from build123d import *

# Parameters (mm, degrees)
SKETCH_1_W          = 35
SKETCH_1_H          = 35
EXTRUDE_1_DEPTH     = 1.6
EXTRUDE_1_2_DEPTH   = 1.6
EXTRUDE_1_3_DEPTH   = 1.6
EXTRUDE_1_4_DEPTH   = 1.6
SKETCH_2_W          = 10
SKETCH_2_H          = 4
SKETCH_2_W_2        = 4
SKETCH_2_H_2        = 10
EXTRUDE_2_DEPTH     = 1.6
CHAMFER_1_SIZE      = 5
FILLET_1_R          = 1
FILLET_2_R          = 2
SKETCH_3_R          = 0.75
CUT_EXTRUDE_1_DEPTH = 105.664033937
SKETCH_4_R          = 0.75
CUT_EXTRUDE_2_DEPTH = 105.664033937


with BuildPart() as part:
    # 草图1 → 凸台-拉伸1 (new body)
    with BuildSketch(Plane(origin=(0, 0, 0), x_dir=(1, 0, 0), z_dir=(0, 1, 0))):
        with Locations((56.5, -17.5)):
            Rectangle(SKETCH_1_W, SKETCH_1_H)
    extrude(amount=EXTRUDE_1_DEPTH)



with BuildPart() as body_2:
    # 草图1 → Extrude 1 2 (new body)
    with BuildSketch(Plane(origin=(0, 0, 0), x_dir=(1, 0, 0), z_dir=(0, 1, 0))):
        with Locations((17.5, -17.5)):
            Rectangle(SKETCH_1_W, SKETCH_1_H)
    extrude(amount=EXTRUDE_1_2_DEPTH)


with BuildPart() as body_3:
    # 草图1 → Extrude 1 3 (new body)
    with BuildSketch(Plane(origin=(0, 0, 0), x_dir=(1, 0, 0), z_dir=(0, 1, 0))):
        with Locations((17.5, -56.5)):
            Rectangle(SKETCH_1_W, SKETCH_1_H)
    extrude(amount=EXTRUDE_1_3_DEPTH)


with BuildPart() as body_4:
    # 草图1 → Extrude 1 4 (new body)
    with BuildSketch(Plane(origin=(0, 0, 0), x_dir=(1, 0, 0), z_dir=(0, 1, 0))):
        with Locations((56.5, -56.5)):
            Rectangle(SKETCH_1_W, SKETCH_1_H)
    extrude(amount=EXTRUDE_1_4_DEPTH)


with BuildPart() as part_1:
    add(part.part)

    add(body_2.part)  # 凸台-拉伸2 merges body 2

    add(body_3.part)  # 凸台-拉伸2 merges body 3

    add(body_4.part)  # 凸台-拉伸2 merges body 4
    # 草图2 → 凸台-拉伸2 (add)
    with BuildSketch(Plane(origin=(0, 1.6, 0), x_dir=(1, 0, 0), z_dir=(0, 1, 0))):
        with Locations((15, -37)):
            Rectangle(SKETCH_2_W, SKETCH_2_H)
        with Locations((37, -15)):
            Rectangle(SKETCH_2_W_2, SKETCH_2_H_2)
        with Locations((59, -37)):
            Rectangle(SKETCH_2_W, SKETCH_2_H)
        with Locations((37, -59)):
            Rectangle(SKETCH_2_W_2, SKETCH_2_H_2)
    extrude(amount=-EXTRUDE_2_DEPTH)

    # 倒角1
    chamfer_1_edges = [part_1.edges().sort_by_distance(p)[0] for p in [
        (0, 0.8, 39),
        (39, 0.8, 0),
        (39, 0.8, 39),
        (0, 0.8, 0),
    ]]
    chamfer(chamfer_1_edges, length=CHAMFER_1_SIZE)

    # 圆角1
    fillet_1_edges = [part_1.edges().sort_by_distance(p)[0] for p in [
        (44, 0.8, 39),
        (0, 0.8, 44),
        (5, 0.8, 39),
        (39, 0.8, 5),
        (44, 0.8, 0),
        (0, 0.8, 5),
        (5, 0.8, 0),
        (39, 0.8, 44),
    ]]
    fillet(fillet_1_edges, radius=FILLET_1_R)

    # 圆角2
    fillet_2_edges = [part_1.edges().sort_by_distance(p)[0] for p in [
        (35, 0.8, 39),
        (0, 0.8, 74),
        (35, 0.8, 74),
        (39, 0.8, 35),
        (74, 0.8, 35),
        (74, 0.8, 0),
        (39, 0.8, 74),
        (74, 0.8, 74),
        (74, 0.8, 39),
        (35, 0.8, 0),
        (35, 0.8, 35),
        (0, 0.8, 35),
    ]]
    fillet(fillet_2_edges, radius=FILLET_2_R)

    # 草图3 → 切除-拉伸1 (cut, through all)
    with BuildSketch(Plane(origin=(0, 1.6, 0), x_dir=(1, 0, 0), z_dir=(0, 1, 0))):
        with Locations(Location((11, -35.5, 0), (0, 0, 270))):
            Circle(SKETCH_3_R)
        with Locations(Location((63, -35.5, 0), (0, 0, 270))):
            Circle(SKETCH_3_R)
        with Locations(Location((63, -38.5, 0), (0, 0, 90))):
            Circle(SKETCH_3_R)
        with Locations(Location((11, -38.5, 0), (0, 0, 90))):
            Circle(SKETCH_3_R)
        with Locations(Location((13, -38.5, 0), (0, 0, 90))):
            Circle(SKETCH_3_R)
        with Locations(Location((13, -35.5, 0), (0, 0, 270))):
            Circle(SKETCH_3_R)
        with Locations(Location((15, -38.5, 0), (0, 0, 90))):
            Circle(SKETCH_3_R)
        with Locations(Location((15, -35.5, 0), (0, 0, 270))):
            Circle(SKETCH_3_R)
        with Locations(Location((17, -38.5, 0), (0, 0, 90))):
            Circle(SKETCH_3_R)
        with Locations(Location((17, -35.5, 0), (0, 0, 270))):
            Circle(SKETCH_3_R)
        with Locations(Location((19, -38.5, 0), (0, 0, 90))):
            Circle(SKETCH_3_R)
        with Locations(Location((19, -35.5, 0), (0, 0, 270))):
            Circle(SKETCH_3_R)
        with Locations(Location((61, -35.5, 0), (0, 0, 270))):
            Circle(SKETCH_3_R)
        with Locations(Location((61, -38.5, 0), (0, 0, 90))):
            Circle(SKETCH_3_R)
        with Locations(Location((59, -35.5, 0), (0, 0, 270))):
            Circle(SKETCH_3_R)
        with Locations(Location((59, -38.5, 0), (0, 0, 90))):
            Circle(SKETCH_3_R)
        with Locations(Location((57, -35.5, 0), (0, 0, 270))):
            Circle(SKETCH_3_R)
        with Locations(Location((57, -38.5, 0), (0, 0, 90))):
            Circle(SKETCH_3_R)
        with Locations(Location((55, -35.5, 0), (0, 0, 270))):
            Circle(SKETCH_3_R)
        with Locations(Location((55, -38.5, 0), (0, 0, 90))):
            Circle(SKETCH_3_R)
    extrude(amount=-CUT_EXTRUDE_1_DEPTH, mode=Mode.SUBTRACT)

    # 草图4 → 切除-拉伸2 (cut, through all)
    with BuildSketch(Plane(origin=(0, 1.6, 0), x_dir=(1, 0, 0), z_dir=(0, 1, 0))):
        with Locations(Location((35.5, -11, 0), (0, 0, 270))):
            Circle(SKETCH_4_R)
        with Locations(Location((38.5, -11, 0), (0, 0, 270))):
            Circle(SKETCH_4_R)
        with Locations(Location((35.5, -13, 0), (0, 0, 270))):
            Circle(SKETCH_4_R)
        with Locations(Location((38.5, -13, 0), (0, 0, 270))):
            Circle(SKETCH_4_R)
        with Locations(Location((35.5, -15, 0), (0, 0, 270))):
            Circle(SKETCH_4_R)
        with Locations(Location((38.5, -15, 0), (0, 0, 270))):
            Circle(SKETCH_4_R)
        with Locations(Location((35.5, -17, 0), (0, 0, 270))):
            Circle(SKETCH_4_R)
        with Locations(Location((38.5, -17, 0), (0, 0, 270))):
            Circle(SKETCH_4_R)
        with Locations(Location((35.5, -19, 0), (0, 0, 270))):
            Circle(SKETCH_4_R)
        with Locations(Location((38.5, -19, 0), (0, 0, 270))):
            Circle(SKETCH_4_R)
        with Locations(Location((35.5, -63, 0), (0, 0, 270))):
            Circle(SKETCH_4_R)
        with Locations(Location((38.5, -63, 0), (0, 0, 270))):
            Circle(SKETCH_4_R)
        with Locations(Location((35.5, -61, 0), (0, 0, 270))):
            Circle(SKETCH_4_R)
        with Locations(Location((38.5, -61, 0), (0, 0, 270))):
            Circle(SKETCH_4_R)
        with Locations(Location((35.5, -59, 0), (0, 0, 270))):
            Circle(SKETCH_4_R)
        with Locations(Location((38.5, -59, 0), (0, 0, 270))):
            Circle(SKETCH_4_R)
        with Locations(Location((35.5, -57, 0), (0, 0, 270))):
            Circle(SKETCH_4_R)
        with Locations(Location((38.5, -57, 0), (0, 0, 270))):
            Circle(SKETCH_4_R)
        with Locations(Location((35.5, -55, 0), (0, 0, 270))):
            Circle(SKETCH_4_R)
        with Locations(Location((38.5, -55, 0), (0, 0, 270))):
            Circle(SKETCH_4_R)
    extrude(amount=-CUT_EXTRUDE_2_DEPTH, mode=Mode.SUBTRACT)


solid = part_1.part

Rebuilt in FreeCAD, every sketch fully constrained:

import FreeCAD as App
import Part
import Sketcher

V = App.Vector
Q = App.Units.Quantity


def edges_at(feature, points):
    """Names of the edges that pass closest to the given points."""
    edges = feature.Shape.Edges
    near = lambda p: min(range(len(edges)), key=lambda i: edges[i].distToShape(Part.Vertex(*p))[0])
    return sorted({f"Edge{near(p) + 1}" for p in points})

doc = App.newDocument("Part")
params = doc.addObject("Spreadsheet::Sheet", "Params")
for row, (alias, value) in enumerate([
    ("sketch1_width", "35 mm"),
    ("pad1_length", "1.6 mm"),
    ("sketch2_width", "35 mm"),
    ("pad2_length", "1.6 mm"),
    ("sketch3_width", "35 mm"),
    ("pad3_length", "1.6 mm"),
    ("sketch4_width", "35 mm"),
    ("pad4_length", "1.6 mm"),
    ("sketch5_width", "10 mm"),
    ("sketch5_width2", "4 mm"),
    ("pad5_length", "1.6 mm"),
    ("chamfer_size", "5 mm"),
    ("fillet_radius", "1 mm"),
    ("fillet2_radius", "2 mm"),
    ("sketch6_diameter", "1.5 mm"),
    ("sketch7_diameter", "1.5 mm"),
], start=1):
    params.set(f"A{row}", alias)
    params.set(f"B{row}", "=" + value)
    params.setAlias(f"B{row}", alias)

body = doc.addObject("PartDesign::Body", "Body")

sketch1 = body.newObject("Sketcher::SketchObject", "Sketch")
sketch1.AttachmentSupport = (doc.getObject("XZ_Plane"), [""])
sketch1.MapMode = "FlatFace"
sketch1.addGeometry(Part.LineSegment(V(39, 0, 0), V(39, 35, 0)), False)
sketch1.addGeometry(Part.LineSegment(V(39, 35, 0), V(74, 35, 0)), False)
sketch1.addGeometry(Part.LineSegment(V(74, 35, 0), V(74, 0, 0)), False)
sketch1.addGeometry(Part.LineSegment(V(74, 0, 0), V(39, 0, 0)), False)
sketch1.addConstraint(Sketcher.Constraint("Coincident", 0, 2, 1, 1))
sketch1.addConstraint(Sketcher.Constraint("Coincident", 1, 2, 2, 1))
sketch1.addConstraint(Sketcher.Constraint("Coincident", 2, 2, 3, 1))
sketch1.addConstraint(Sketcher.Constraint("Coincident", 3, 2, 0, 1))
sketch1.addConstraint(Sketcher.Constraint("Vertical", 0))
sketch1.addConstraint(Sketcher.Constraint("Horizontal", 1))
sketch1.addConstraint(Sketcher.Constraint("Vertical", 2))
sketch1.addConstraint(Sketcher.Constraint("Horizontal", 3))
sketch1.addConstraint(Sketcher.Constraint("PointOnObject", 2, 2, -1))
sketch1.addConstraint(Sketcher.Constraint("Equal", 3, 0))
sketch1.addConstraint(Sketcher.Constraint("DistanceX", 1, 1, 1, 2, Q("35 mm")))
sketch1.addConstraint(Sketcher.Constraint("DistanceX", -1, 1, 0, 2, Q("39 mm")))
sketch1.setExpression("Constraints[10]", "Params.sketch1_width")
pad1 = body.newObject("PartDesign::Pad", "Pad")
pad1.Profile = sketch1
pad1.setExpression("Length", "Params.pad1_length")
pad1.Reversed = True
body2 = doc.addObject("PartDesign::Body", "Body001")

sketch2 = body2.newObject("Sketcher::SketchObject", "Sketch001")
sketch2.AttachmentSupport = (doc.getObject("XZ_Plane001"), [""])
sketch2.MapMode = "FlatFace"
sketch2.addGeometry(Part.LineSegment(V(0, 0, 0), V(0, 35, 0)), False)
sketch2.addGeometry(Part.LineSegment(V(0, 35, 0), V(35, 35, 0)), False)
sketch2.addGeometry(Part.LineSegment(V(35, 35, 0), V(35, 0, 0)), False)
sketch2.addGeometry(Part.LineSegment(V(35, 0, 0), V(0, 0, 0)), False)
sketch2.addConstraint(Sketcher.Constraint("Coincident", 0, 2, 1, 1))
sketch2.addConstraint(Sketcher.Constraint("Coincident", 1, 2, 2, 1))
sketch2.addConstraint(Sketcher.Constraint("Coincident", 2, 2, 3, 1))
sketch2.addConstraint(Sketcher.Constraint("Coincident", 3, 2, 0, 1))
sketch2.addConstraint(Sketcher.Constraint("Vertical", 0))
sketch2.addConstraint(Sketcher.Constraint("Horizontal", 1))
sketch2.addConstraint(Sketcher.Constraint("Vertical", 2))
sketch2.addConstraint(Sketcher.Constraint("Horizontal", 3))
sketch2.addConstraint(Sketcher.Constraint("Coincident", 3, 2, -1, 1))
sketch2.addConstraint(Sketcher.Constraint("Equal", 3, 0))
sketch2.addConstraint(Sketcher.Constraint("DistanceX", 1, 1, 1, 2, Q("35 mm")))
sketch2.setExpression("Constraints[10]", "Params.sketch2_width")
pad2 = body2.newObject("PartDesign::Pad", "Pad001")
pad2.Profile = sketch2
pad2.setExpression("Length", "Params.pad2_length")
pad2.Reversed = True
body3 = doc.addObject("PartDesign::Body", "Body002")

sketch3 = body3.newObject("Sketcher::SketchObject", "Sketch002")
sketch3.AttachmentSupport = (doc.getObject("XZ_Plane002"), [""])
sketch3.MapMode = "FlatFace"
sketch3.addGeometry(Part.LineSegment(V(0, 39, 0), V(0, 74, 0)), False)
sketch3.addGeometry(Part.LineSegment(V(0, 74, 0), V(35, 74, 0)), False)
sketch3.addGeometry(Part.LineSegment(V(35, 74, 0), V(35, 39, 0)), False)
sketch3.addGeometry(Part.LineSegment(V(35, 39, 0), V(0, 39, 0)), False)
sketch3.addConstraint(Sketcher.Constraint("Coincident", 0, 2, 1, 1))
sketch3.addConstraint(Sketcher.Constraint("Coincident", 1, 2, 2, 1))
sketch3.addConstraint(Sketcher.Constraint("Coincident", 2, 2, 3, 1))
sketch3.addConstraint(Sketcher.Constraint("Coincident", 3, 2, 0, 1))
sketch3.addConstraint(Sketcher.Constraint("Vertical", 0))
sketch3.addConstraint(Sketcher.Constraint("Horizontal", 1))
sketch3.addConstraint(Sketcher.Constraint("Vertical", 2))
sketch3.addConstraint(Sketcher.Constraint("Horizontal", 3))
sketch3.addConstraint(Sketcher.Constraint("PointOnObject", 0, 2, -2))
sketch3.addConstraint(Sketcher.Constraint("Equal", 3, 0))
sketch3.addConstraint(Sketcher.Constraint("DistanceX", 1, 1, 1, 2, Q("35 mm")))
sketch3.addConstraint(Sketcher.Constraint("DistanceY", -1, 1, 0, 2, Q("74 mm")))
sketch3.setExpression("Constraints[10]", "Params.sketch3_width")
pad3 = body3.newObject("PartDesign::Pad", "Pad002")
pad3.Profile = sketch3
pad3.setExpression("Length", "Params.pad3_length")
pad3.Reversed = True
body4 = doc.addObject("PartDesign::Body", "Body003")

sketch4 = body4.newObject("Sketcher::SketchObject", "Sketch003")
sketch4.AttachmentSupport = (doc.getObject("XZ_Plane003"), [""])
sketch4.MapMode = "FlatFace"
sketch4.addGeometry(Part.LineSegment(V(39, 39, 0), V(39, 74, 0)), False)
sketch4.addGeometry(Part.LineSegment(V(39, 74, 0), V(74, 74, 0)), False)
sketch4.addGeometry(Part.LineSegment(V(74, 74, 0), V(74, 39, 0)), False)
sketch4.addGeometry(Part.LineSegment(V(74, 39, 0), V(39, 39, 0)), False)
sketch4.addConstraint(Sketcher.Constraint("Coincident", 0, 2, 1, 1))
sketch4.addConstraint(Sketcher.Constraint("Coincident", 1, 2, 2, 1))
sketch4.addConstraint(Sketcher.Constraint("Coincident", 2, 2, 3, 1))
sketch4.addConstraint(Sketcher.Constraint("Coincident", 3, 2, 0, 1))
sketch4.addConstraint(Sketcher.Constraint("Vertical", 0))
sketch4.addConstraint(Sketcher.Constraint("Horizontal", 1))
sketch4.addConstraint(Sketcher.Constraint("Vertical", 2))
sketch4.addConstraint(Sketcher.Constraint("Horizontal", 3))
sketch4.addConstraint(Sketcher.Constraint("Equal", 3, 0))
sketch4.addConstraint(Sketcher.Constraint("DistanceX", 1, 1, 1, 2, Q("35 mm")))
sketch4.addConstraint(Sketcher.Constraint("DistanceX", -1, 1, 0, 2, Q("39 mm")))
sketch4.addConstraint(Sketcher.Constraint("DistanceY", -1, 1, 0, 2, Q("74 mm")))
sketch4.setExpression("Constraints[9]", "Params.sketch4_width")
pad4 = body4.newObject("PartDesign::Pad", "Pad003")
pad4.Profile = sketch4
pad4.setExpression("Length", "Params.pad4_length")
pad4.Reversed = True
body.AllowCompound = True
doc.recompute()

boolean = body.newObject("PartDesign::Boolean", "Boolean")
boolean.Type = "Fuse"
boolean.addObjects([body2])
doc.recompute()

boolean2 = body.newObject("PartDesign::Boolean", "Boolean001")
boolean2.Type = "Fuse"
boolean2.addObjects([body3])
doc.recompute()

boolean3 = body.newObject("PartDesign::Boolean", "Boolean002")
boolean3.Type = "Fuse"
boolean3.addObjects([body4])

sketch5 = body.newObject("Sketcher::SketchObject", "Sketch004")
sketch5.AttachmentSupport = (doc.getObject("XZ_Plane"), [""])
sketch5.MapMode = "FlatFace"
sketch5.AttachmentOffset = App.Placement(V(0, 0, -1.6), App.Rotation())
sketch5.addGeometry(Part.LineSegment(V(10, 35, 0), V(10, 39, 0)), False)
sketch5.addGeometry(Part.LineSegment(V(10, 39, 0), V(20, 39, 0)), False)
sketch5.addGeometry(Part.LineSegment(V(20, 39, 0), V(20, 35, 0)), False)
sketch5.addGeometry(Part.LineSegment(V(20, 35, 0), V(10, 35, 0)), False)
sketch5.addGeometry(Part.LineSegment(V(35, 10, 0), V(35, 20, 0)), False)
sketch5.addGeometry(Part.LineSegment(V(35, 20, 0), V(39, 20, 0)), False)
sketch5.addGeometry(Part.LineSegment(V(39, 20, 0), V(39, 10, 0)), False)
sketch5.addGeometry(Part.LineSegment(V(39, 10, 0), V(35, 10, 0)), False)
sketch5.addGeometry(Part.LineSegment(V(54, 35, 0), V(54, 39, 0)), False)
sketch5.addGeometry(Part.LineSegment(V(54, 39, 0), V(64, 39, 0)), False)
sketch5.addGeometry(Part.LineSegment(V(64, 39, 0), V(64, 35, 0)), False)
sketch5.addGeometry(Part.LineSegment(V(64, 35, 0), V(54, 35, 0)), False)
sketch5.addGeometry(Part.LineSegment(V(35, 54, 0), V(35, 64, 0)), False)
sketch5.addGeometry(Part.LineSegment(V(35, 64, 0), V(39, 64, 0)), False)
sketch5.addGeometry(Part.LineSegment(V(39, 64, 0), V(39, 54, 0)), False)
sketch5.addGeometry(Part.LineSegment(V(39, 54, 0), V(35, 54, 0)), False)
sketch5.addConstraint(Sketcher.Constraint("Coincident", 0, 2, 1, 1))
sketch5.addConstraint(Sketcher.Constraint("Coincident", 1, 2, 2, 1))
sketch5.addConstraint(Sketcher.Constraint("Coincident", 2, 2, 3, 1))
sketch5.addConstraint(Sketcher.Constraint("Coincident", 3, 2, 0, 1))
sketch5.addConstraint(Sketcher.Constraint("Coincident", 4, 2, 5, 1))
sketch5.addConstraint(Sketcher.Constraint("Coincident", 5, 2, 6, 1))
sketch5.addConstraint(Sketcher.Constraint("Coincident", 6, 2, 7, 1))
sketch5.addConstraint(Sketcher.Constraint("Coincident", 7, 2, 4, 1))
sketch5.addConstraint(Sketcher.Constraint("Coincident", 8, 2, 9, 1))
sketch5.addConstraint(Sketcher.Constraint("Coincident", 9, 2, 10, 1))
sketch5.addConstraint(Sketcher.Constraint("Coincident", 10, 2, 11, 1))
sketch5.addConstraint(Sketcher.Constraint("Coincident", 11, 2, 8, 1))
sketch5.addConstraint(Sketcher.Constraint("Coincident", 12, 2, 13, 1))
sketch5.addConstraint(Sketcher.Constraint("Coincident", 13, 2, 14, 1))
sketch5.addConstraint(Sketcher.Constraint("Coincident", 14, 2, 15, 1))
sketch5.addConstraint(Sketcher.Constraint("Coincident", 15, 2, 12, 1))
sketch5.addConstraint(Sketcher.Constraint("Vertical", 0))
sketch5.addConstraint(Sketcher.Constraint("Horizontal", 1))
sketch5.addConstraint(Sketcher.Constraint("Vertical", 2))
sketch5.addConstraint(Sketcher.Constraint("Horizontal", 3))
sketch5.addConstraint(Sketcher.Constraint("Vertical", 4))
sketch5.addConstraint(Sketcher.Constraint("Horizontal", 5))
sketch5.addConstraint(Sketcher.Constraint("Vertical", 6))
sketch5.addConstraint(Sketcher.Constraint("Horizontal", 7))
sketch5.addConstraint(Sketcher.Constraint("Vertical", 8))
sketch5.addConstraint(Sketcher.Constraint("Horizontal", 9))
sketch5.addConstraint(Sketcher.Constraint("Vertical", 10))
sketch5.addConstraint(Sketcher.Constraint("Horizontal", 11))
sketch5.addConstraint(Sketcher.Constraint("Vertical", 12))
sketch5.addConstraint(Sketcher.Constraint("Horizontal", 13))
sketch5.addConstraint(Sketcher.Constraint("Vertical", 14))
sketch5.addConstraint(Sketcher.Constraint("Horizontal", 15))
sketch5.addConstraint(Sketcher.Constraint("Horizontal", 1, 2, 8, 2))
sketch5.addConstraint(Sketcher.Constraint("Horizontal", 3, 2, 10, 2))
sketch5.addConstraint(Sketcher.Constraint("Vertical", 7, 2, 12, 2))
sketch5.addConstraint(Sketcher.Constraint("Vertical", 6, 2, 13, 2))
sketch5.addConstraint(Sketcher.Constraint("Equal", 3, 9))
sketch5.addConstraint(Sketcher.Constraint("Equal", 15, 0))
sketch5.addConstraint(Sketcher.Constraint("Equal", 11, 4))
sketch5.addConstraint(Sketcher.Constraint("Equal", 6, 12))
sketch5.addConstraint(Sketcher.Constraint("DistanceX", 1, 1, 1, 2, Q("10 mm")))
sketch5.addConstraint(Sketcher.Constraint("DistanceX", 5, 1, 5, 2, Q("4 mm")))
sketch5.addConstraint(Sketcher.Constraint("DistanceX", -1, 1, 0, 2, Q("10 mm")))
sketch5.addConstraint(Sketcher.Constraint("DistanceY", -1, 1, 0, 2, Q("39 mm")))
sketch5.addConstraint(Sketcher.Constraint("DistanceX", -1, 1, 4, 2, Q("35 mm")))
sketch5.addConstraint(Sketcher.Constraint("DistanceY", -1, 1, 4, 2, Q("20 mm")))
sketch5.addConstraint(Sketcher.Constraint("DistanceX", -1, 1, 8, 2, Q("54 mm")))
sketch5.addConstraint(Sketcher.Constraint("DistanceY", -1, 1, 12, 2, Q("64 mm")))
sketch5.setExpression("Constraints[40]", "Params.sketch5_width")
sketch5.setExpression("Constraints[41]", "Params.sketch5_width2")
pad5 = body.newObject("PartDesign::Pad", "Pad004")
pad5.Profile = sketch5
pad5.setExpression("Length", "Params.pad5_length")
doc.recompute()

chamfer = body.newObject("PartDesign::Chamfer", "Chamfer")
chamfer.Base = (pad5, edges_at(pad5, [
    (0, 0.8, 39),
    (39, 0.8, 0),
    (39, 0.8, 39),
    (0, 0.8, 0),
]))
chamfer.setExpression("Size", "Params.chamfer_size")
doc.recompute()

fillet = body.newObject("PartDesign::Fillet", "Fillet")
fillet.Base = (chamfer, edges_at(chamfer, [
    (44, 0.8, 39),
    (0, 0.8, 44),
    (5, 0.8, 39),
    (39, 0.8, 5),
    (44, 0.8, 0),
    (0, 0.8, 5),
    (5, 0.8, 0),
    (39, 0.8, 44),
]))
fillet.setExpression("Radius", "Params.fillet_radius")
doc.recompute()

fillet2 = body.newObject("PartDesign::Fillet", "Fillet001")
fillet2.Base = (fillet, edges_at(fillet, [
    (35, 0.8, 39),
    (0, 0.8, 74),
    (35, 0.8, 74),
    (39, 0.8, 35),
    (74, 0.8, 35),
    (74, 0.8, 0),
    (39, 0.8, 74),
    (74, 0.8, 74),
    (74, 0.8, 39),
    (35, 0.8, 0),
    (35, 0.8, 35),
    (0, 0.8, 35),
]))
fillet2.setExpression("Radius", "Params.fillet2_radius")

sketch6 = body.newObject("Sketcher::SketchObject", "Sketch005")
sketch6.AttachmentSupport = (doc.getObject("XZ_Plane"), [""])
sketch6.MapMode = "FlatFace"
sketch6.AttachmentOffset = App.Placement(V(0, 0, -1.6), App.Rotation())
sketch6.addGeometry(Part.Circle(V(11, 35.5, 0), V(0, 0, 1), 0.75), False)
sketch6.addGeometry(Part.Circle(V(63, 35.5, 0), V(0, 0, 1), 0.75), False)
sketch6.addGeometry(Part.Circle(V(63, 38.5, 0), V(0, 0, 1), 0.75), False)
sketch6.addGeometry(Part.Circle(V(11, 38.5, 0), V(0, 0, 1), 0.75), False)
sketch6.addGeometry(Part.Circle(V(13, 38.5, 0), V(0, 0, 1), 0.75), False)
sketch6.addGeometry(Part.Circle(V(13, 35.5, 0), V(0, 0, 1), 0.75), False)
sketch6.addGeometry(Part.Circle(V(15, 38.5, 0), V(0, 0, 1), 0.75), False)
sketch6.addGeometry(Part.Circle(V(15, 35.5, 0), V(0, 0, 1), 0.75), False)
sketch6.addGeometry(Part.Circle(V(17, 38.5, 0), V(0, 0, 1), 0.75), False)
sketch6.addGeometry(Part.Circle(V(17, 35.5, 0), V(0, 0, 1), 0.75), False)
sketch6.addGeometry(Part.Circle(V(19, 38.5, 0), V(0, 0, 1), 0.75), False)
sketch6.addGeometry(Part.Circle(V(19, 35.5, 0), V(0, 0, 1), 0.75), False)
sketch6.addGeometry(Part.Circle(V(61, 35.5, 0), V(0, 0, 1), 0.75), False)
sketch6.addGeometry(Part.Circle(V(61, 38.5, 0), V(0, 0, 1), 0.75), False)
sketch6.addGeometry(Part.Circle(V(59, 35.5, 0), V(0, 0, 1), 0.75), False)
sketch6.addGeometry(Part.Circle(V(59, 38.5, 0), V(0, 0, 1), 0.75), False)
sketch6.addGeometry(Part.Circle(V(57, 35.5, 0), V(0, 0, 1), 0.75), False)
sketch6.addGeometry(Part.Circle(V(57, 38.5, 0), V(0, 0, 1), 0.75), False)
sketch6.addGeometry(Part.Circle(V(55, 35.5, 0), V(0, 0, 1), 0.75), False)
sketch6.addGeometry(Part.Circle(V(55, 38.5, 0), V(0, 0, 1), 0.75), False)
sketch6.addConstraint(Sketcher.Constraint("Equal", 0, 1))
sketch6.addConstraint(Sketcher.Constraint("Equal", 1, 2))
sketch6.addConstraint(Sketcher.Constraint("Equal", 2, 3))
sketch6.addConstraint(Sketcher.Constraint("Equal", 3, 4))
sketch6.addConstraint(Sketcher.Constraint("Equal", 4, 5))
sketch6.addConstraint(Sketcher.Constraint("Equal", 5, 6))
sketch6.addConstraint(Sketcher.Constraint("Equal", 6, 7))
sketch6.addConstraint(Sketcher.Constraint("Equal", 7, 8))
sketch6.addConstraint(Sketcher.Constraint("Equal", 8, 9))
sketch6.addConstraint(Sketcher.Constraint("Equal", 9, 10))
sketch6.addConstraint(Sketcher.Constraint("Equal", 10, 11))
sketch6.addConstraint(Sketcher.Constraint("Equal", 11, 12))
sketch6.addConstraint(Sketcher.Constraint("Equal", 12, 13))
sketch6.addConstraint(Sketcher.Constraint("Equal", 13, 14))
sketch6.addConstraint(Sketcher.Constraint("Equal", 14, 15))
sketch6.addConstraint(Sketcher.Constraint("Equal", 15, 16))
sketch6.addConstraint(Sketcher.Constraint("Equal", 16, 17))
sketch6.addConstraint(Sketcher.Constraint("Equal", 17, 18))
sketch6.addConstraint(Sketcher.Constraint("Equal", 18, 19))
sketch6.addConstraint(Sketcher.Constraint("Horizontal", 0, 3, 1, 3))
sketch6.addConstraint(Sketcher.Constraint("Horizontal", 2, 3, 3, 3))
sketch6.addConstraint(Sketcher.Constraint("Horizontal", 3, 3, 4, 3))
sketch6.addConstraint(Sketcher.Constraint("Horizontal", 1, 3, 5, 3))
sketch6.addConstraint(Sketcher.Constraint("Horizontal", 4, 3, 6, 3))
sketch6.addConstraint(Sketcher.Constraint("Horizontal", 5, 3, 7, 3))
sketch6.addConstraint(Sketcher.Constraint("Horizontal", 6, 3, 8, 3))
sketch6.addConstraint(Sketcher.Constraint("Horizontal", 7, 3, 9, 3))
sketch6.addConstraint(Sketcher.Constraint("Horizontal", 8, 3, 10, 3))
sketch6.addConstraint(Sketcher.Constraint("Horizontal", 9, 3, 11, 3))
sketch6.addConstraint(Sketcher.Constraint("Horizontal", 11, 3, 12, 3))
sketch6.addConstraint(Sketcher.Constraint("Horizontal", 10, 3, 13, 3))
sketch6.addConstraint(Sketcher.Constraint("Horizontal", 12, 3, 14, 3))
sketch6.addConstraint(Sketcher.Constraint("Horizontal", 13, 3, 15, 3))
sketch6.addConstraint(Sketcher.Constraint("Horizontal", 14, 3, 16, 3))
sketch6.addConstraint(Sketcher.Constraint("Horizontal", 15, 3, 17, 3))
sketch6.addConstraint(Sketcher.Constraint("Horizontal", 16, 3, 18, 3))
sketch6.addConstraint(Sketcher.Constraint("Horizontal", 17, 3, 19, 3))
sketch6.addConstraint(Sketcher.Constraint("Vertical", 1, 3, 2, 3))
sketch6.addConstraint(Sketcher.Constraint("Vertical", 0, 3, 3, 3))
sketch6.addConstraint(Sketcher.Constraint("Vertical", 4, 3, 5, 3))
sketch6.addConstraint(Sketcher.Constraint("Vertical", 6, 3, 7, 3))
sketch6.addConstraint(Sketcher.Constraint("Vertical", 8, 3, 9, 3))
sketch6.addConstraint(Sketcher.Constraint("Vertical", 10, 3, 11, 3))
sketch6.addConstraint(Sketcher.Constraint("Vertical", 12, 3, 13, 3))
sketch6.addConstraint(Sketcher.Constraint("Vertical", 14, 3, 15, 3))
sketch6.addConstraint(Sketcher.Constraint("Vertical", 16, 3, 17, 3))
sketch6.addConstraint(Sketcher.Constraint("Vertical", 18, 3, 19, 3))
sketch6.addConstraint(Sketcher.Constraint("Diameter", 0, Q("1.5 mm")))
sketch6.addConstraint(Sketcher.Constraint("DistanceX", -1, 1, 0, 3, Q("11 mm")))
sketch6.addConstraint(Sketcher.Constraint("DistanceX", -1, 1, 1, 3, Q("63 mm")))
sketch6.addConstraint(Sketcher.Constraint("DistanceX", -1, 1, 4, 3, Q("13 mm")))
sketch6.addConstraint(Sketcher.Constraint("DistanceX", -1, 1, 6, 3, Q("15 mm")))
sketch6.addConstraint(Sketcher.Constraint("DistanceX", -1, 1, 8, 3, Q("17 mm")))
sketch6.addConstraint(Sketcher.Constraint("DistanceX", -1, 1, 10, 3, Q("19 mm")))
sketch6.addConstraint(Sketcher.Constraint("DistanceX", -1, 1, 12, 3, Q("61 mm")))
sketch6.addConstraint(Sketcher.Constraint("DistanceX", -1, 1, 14, 3, Q("59 mm")))
sketch6.addConstraint(Sketcher.Constraint("DistanceX", -1, 1, 16, 3, Q("57 mm")))
sketch6.addConstraint(Sketcher.Constraint("DistanceX", -1, 1, 18, 3, Q("55 mm")))
sketch6.addConstraint(Sketcher.Constraint("DistanceY", 1, 3, 2, 3, Q("3 mm")))
sketch6.addConstraint(Sketcher.Constraint("DistanceY", -1, 1, 0, 3, Q("35.5 mm")))
sketch6.setExpression("Constraints[47]", "Params.sketch6_diameter")
pocket1 = body.newObject("PartDesign::Pocket", "Pocket")
pocket1.Profile = sketch6
pocket1.Type = "ThroughAll"
pocket1.Reversed = True

sketch7 = body.newObject("Sketcher::SketchObject", "Sketch006")
sketch7.AttachmentSupport = (doc.getObject("XZ_Plane"), [""])
sketch7.MapMode = "FlatFace"
sketch7.AttachmentOffset = App.Placement(V(0, 0, -1.6), App.Rotation())
sketch7.addGeometry(Part.Circle(V(35.5, 11, 0), V(0, 0, 1), 0.75), False)
sketch7.addGeometry(Part.Circle(V(38.5, 11, 0), V(0, 0, 1), 0.75), False)
sketch7.addGeometry(Part.Circle(V(35.5, 13, 0), V(0, 0, 1), 0.75), False)
sketch7.addGeometry(Part.Circle(V(38.5, 13, 0), V(0, 0, 1), 0.75), False)
sketch7.addGeometry(Part.Circle(V(35.5, 15, 0), V(0, 0, 1), 0.75), False)
sketch7.addGeometry(Part.Circle(V(38.5, 15, 0), V(0, 0, 1), 0.75), False)
sketch7.addGeometry(Part.Circle(V(35.5, 17, 0), V(0, 0, 1), 0.75), False)
sketch7.addGeometry(Part.Circle(V(38.5, 17, 0), V(0, 0, 1), 0.75), False)
sketch7.addGeometry(Part.Circle(V(35.5, 19, 0), V(0, 0, 1), 0.75), False)
sketch7.addGeometry(Part.Circle(V(38.5, 19, 0), V(0, 0, 1), 0.75), False)
sketch7.addGeometry(Part.Circle(V(35.5, 63, 0), V(0, 0, 1), 0.75), False)
sketch7.addGeometry(Part.Circle(V(38.5, 63, 0), V(0, 0, 1), 0.75), False)
sketch7.addGeometry(Part.Circle(V(35.5, 61, 0), V(0, 0, 1), 0.75), False)
sketch7.addGeometry(Part.Circle(V(38.5, 61, 0), V(0, 0, 1), 0.75), False)
sketch7.addGeometry(Part.Circle(V(35.5, 59, 0), V(0, 0, 1), 0.75), False)
sketch7.addGeometry(Part.Circle(V(38.5, 59, 0), V(0, 0, 1), 0.75), False)
sketch7.addGeometry(Part.Circle(V(35.5, 57, 0), V(0, 0, 1), 0.75), False)
sketch7.addGeometry(Part.Circle(V(38.5, 57, 0), V(0, 0, 1), 0.75), False)
sketch7.addGeometry(Part.Circle(V(35.5, 55, 0), V(0, 0, 1), 0.75), False)
sketch7.addGeometry(Part.Circle(V(38.5, 55, 0), V(0, 0, 1), 0.75), False)
sketch7.addConstraint(Sketcher.Constraint("Equal", 0, 1))
sketch7.addConstraint(Sketcher.Constraint("Equal", 1, 2))
sketch7.addConstraint(Sketcher.Constraint("Equal", 2, 3))
sketch7.addConstraint(Sketcher.Constraint("Equal", 3, 4))
sketch7.addConstraint(Sketcher.Constraint("Equal", 4, 5))
sketch7.addConstraint(Sketcher.Constraint("Equal", 5, 6))
sketch7.addConstraint(Sketcher.Constraint("Equal", 6, 7))
sketch7.addConstraint(Sketcher.Constraint("Equal", 7, 8))
sketch7.addConstraint(Sketcher.Constraint("Equal", 8, 9))
sketch7.addConstraint(Sketcher.Constraint("Equal", 9, 10))
sketch7.addConstraint(Sketcher.Constraint("Equal", 10, 11))
sketch7.addConstraint(Sketcher.Constraint("Equal", 11, 12))
sketch7.addConstraint(Sketcher.Constraint("Equal", 12, 13))
sketch7.addConstraint(Sketcher.Constraint("Equal", 13, 14))
sketch7.addConstraint(Sketcher.Constraint("Equal", 14, 15))
sketch7.addConstraint(Sketcher.Constraint("Equal", 15, 16))
sketch7.addConstraint(Sketcher.Constraint("Equal", 16, 17))
sketch7.addConstraint(Sketcher.Constraint("Equal", 17, 18))
sketch7.addConstraint(Sketcher.Constraint("Equal", 18, 19))
sketch7.addConstraint(Sketcher.Constraint("Horizontal", 0, 3, 1, 3))
sketch7.addConstraint(Sketcher.Constraint("Horizontal", 2, 3, 3, 3))
sketch7.addConstraint(Sketcher.Constraint("Horizontal", 4, 3, 5, 3))
sketch7.addConstraint(Sketcher.Constraint("Horizontal", 6, 3, 7, 3))
sketch7.addConstraint(Sketcher.Constraint("Horizontal", 8, 3, 9, 3))
sketch7.addConstraint(Sketcher.Constraint("Horizontal", 10, 3, 11, 3))
sketch7.addConstraint(Sketcher.Constraint("Horizontal", 12, 3, 13, 3))
sketch7.addConstraint(Sketcher.Constraint("Horizontal", 14, 3, 15, 3))
sketch7.addConstraint(Sketcher.Constraint("Horizontal", 16, 3, 17, 3))
sketch7.addConstraint(Sketcher.Constraint("Horizontal", 18, 3, 19, 3))
sketch7.addConstraint(Sketcher.Constraint("Vertical", 0, 3, 2, 3))
sketch7.addConstraint(Sketcher.Constraint("Vertical", 1, 3, 3, 3))
sketch7.addConstraint(Sketcher.Constraint("Vertical", 2, 3, 4, 3))
sketch7.addConstraint(Sketcher.Constraint("Vertical", 3, 3, 5, 3))
sketch7.addConstraint(Sketcher.Constraint("Vertical", 4, 3, 6, 3))
sketch7.addConstraint(Sketcher.Constraint("Vertical", 5, 3, 7, 3))
sketch7.addConstraint(Sketcher.Constraint("Vertical", 6, 3, 8, 3))
sketch7.addConstraint(Sketcher.Constraint("Vertical", 7, 3, 9, 3))
sketch7.addConstraint(Sketcher.Constraint("Vertical", 8, 3, 10, 3))
sketch7.addConstraint(Sketcher.Constraint("Vertical", 9, 3, 11, 3))
sketch7.addConstraint(Sketcher.Constraint("Vertical", 10, 3, 12, 3))
sketch7.addConstraint(Sketcher.Constraint("Vertical", 11, 3, 13, 3))
sketch7.addConstraint(Sketcher.Constraint("Vertical", 12, 3, 14, 3))
sketch7.addConstraint(Sketcher.Constraint("Vertical", 13, 3, 15, 3))
sketch7.addConstraint(Sketcher.Constraint("Vertical", 14, 3, 16, 3))
sketch7.addConstraint(Sketcher.Constraint("Vertical", 15, 3, 17, 3))
sketch7.addConstraint(Sketcher.Constraint("Vertical", 16, 3, 18, 3))
sketch7.addConstraint(Sketcher.Constraint("Vertical", 17, 3, 19, 3))
sketch7.addConstraint(Sketcher.Constraint("Diameter", 0, Q("1.5 mm")))
sketch7.addConstraint(Sketcher.Constraint("DistanceY", -1, 1, 0, 3, Q("11 mm")))
sketch7.addConstraint(Sketcher.Constraint("DistanceY", -1, 1, 2, 3, Q("13 mm")))
sketch7.addConstraint(Sketcher.Constraint("DistanceY", -1, 1, 4, 3, Q("15 mm")))
sketch7.addConstraint(Sketcher.Constraint("DistanceY", -1, 1, 6, 3, Q("17 mm")))
sketch7.addConstraint(Sketcher.Constraint("DistanceY", -1, 1, 8, 3, Q("19 mm")))
sketch7.addConstraint(Sketcher.Constraint("DistanceY", -1, 1, 10, 3, Q("63 mm")))
sketch7.addConstraint(Sketcher.Constraint("DistanceY", -1, 1, 12, 3, Q("61 mm")))
sketch7.addConstraint(Sketcher.Constraint("DistanceY", -1, 1, 14, 3, Q("59 mm")))
sketch7.addConstraint(Sketcher.Constraint("DistanceY", -1, 1, 16, 3, Q("57 mm")))
sketch7.addConstraint(Sketcher.Constraint("DistanceY", -1, 1, 18, 3, Q("55 mm")))
sketch7.addConstraint(Sketcher.Constraint("DistanceX", 0, 3, 1, 3, Q("3 mm")))
sketch7.addConstraint(Sketcher.Constraint("DistanceX", -1, 1, 0, 3, Q("35.5 mm")))
sketch7.setExpression("Constraints[47]", "Params.sketch7_diameter")
pocket2 = body.newObject("PartDesign::Pocket", "Pocket001")
pocket2.Profile = sketch7
pocket2.Type = "ThroughAll"
pocket2.Reversed = True

doc.recompute()
